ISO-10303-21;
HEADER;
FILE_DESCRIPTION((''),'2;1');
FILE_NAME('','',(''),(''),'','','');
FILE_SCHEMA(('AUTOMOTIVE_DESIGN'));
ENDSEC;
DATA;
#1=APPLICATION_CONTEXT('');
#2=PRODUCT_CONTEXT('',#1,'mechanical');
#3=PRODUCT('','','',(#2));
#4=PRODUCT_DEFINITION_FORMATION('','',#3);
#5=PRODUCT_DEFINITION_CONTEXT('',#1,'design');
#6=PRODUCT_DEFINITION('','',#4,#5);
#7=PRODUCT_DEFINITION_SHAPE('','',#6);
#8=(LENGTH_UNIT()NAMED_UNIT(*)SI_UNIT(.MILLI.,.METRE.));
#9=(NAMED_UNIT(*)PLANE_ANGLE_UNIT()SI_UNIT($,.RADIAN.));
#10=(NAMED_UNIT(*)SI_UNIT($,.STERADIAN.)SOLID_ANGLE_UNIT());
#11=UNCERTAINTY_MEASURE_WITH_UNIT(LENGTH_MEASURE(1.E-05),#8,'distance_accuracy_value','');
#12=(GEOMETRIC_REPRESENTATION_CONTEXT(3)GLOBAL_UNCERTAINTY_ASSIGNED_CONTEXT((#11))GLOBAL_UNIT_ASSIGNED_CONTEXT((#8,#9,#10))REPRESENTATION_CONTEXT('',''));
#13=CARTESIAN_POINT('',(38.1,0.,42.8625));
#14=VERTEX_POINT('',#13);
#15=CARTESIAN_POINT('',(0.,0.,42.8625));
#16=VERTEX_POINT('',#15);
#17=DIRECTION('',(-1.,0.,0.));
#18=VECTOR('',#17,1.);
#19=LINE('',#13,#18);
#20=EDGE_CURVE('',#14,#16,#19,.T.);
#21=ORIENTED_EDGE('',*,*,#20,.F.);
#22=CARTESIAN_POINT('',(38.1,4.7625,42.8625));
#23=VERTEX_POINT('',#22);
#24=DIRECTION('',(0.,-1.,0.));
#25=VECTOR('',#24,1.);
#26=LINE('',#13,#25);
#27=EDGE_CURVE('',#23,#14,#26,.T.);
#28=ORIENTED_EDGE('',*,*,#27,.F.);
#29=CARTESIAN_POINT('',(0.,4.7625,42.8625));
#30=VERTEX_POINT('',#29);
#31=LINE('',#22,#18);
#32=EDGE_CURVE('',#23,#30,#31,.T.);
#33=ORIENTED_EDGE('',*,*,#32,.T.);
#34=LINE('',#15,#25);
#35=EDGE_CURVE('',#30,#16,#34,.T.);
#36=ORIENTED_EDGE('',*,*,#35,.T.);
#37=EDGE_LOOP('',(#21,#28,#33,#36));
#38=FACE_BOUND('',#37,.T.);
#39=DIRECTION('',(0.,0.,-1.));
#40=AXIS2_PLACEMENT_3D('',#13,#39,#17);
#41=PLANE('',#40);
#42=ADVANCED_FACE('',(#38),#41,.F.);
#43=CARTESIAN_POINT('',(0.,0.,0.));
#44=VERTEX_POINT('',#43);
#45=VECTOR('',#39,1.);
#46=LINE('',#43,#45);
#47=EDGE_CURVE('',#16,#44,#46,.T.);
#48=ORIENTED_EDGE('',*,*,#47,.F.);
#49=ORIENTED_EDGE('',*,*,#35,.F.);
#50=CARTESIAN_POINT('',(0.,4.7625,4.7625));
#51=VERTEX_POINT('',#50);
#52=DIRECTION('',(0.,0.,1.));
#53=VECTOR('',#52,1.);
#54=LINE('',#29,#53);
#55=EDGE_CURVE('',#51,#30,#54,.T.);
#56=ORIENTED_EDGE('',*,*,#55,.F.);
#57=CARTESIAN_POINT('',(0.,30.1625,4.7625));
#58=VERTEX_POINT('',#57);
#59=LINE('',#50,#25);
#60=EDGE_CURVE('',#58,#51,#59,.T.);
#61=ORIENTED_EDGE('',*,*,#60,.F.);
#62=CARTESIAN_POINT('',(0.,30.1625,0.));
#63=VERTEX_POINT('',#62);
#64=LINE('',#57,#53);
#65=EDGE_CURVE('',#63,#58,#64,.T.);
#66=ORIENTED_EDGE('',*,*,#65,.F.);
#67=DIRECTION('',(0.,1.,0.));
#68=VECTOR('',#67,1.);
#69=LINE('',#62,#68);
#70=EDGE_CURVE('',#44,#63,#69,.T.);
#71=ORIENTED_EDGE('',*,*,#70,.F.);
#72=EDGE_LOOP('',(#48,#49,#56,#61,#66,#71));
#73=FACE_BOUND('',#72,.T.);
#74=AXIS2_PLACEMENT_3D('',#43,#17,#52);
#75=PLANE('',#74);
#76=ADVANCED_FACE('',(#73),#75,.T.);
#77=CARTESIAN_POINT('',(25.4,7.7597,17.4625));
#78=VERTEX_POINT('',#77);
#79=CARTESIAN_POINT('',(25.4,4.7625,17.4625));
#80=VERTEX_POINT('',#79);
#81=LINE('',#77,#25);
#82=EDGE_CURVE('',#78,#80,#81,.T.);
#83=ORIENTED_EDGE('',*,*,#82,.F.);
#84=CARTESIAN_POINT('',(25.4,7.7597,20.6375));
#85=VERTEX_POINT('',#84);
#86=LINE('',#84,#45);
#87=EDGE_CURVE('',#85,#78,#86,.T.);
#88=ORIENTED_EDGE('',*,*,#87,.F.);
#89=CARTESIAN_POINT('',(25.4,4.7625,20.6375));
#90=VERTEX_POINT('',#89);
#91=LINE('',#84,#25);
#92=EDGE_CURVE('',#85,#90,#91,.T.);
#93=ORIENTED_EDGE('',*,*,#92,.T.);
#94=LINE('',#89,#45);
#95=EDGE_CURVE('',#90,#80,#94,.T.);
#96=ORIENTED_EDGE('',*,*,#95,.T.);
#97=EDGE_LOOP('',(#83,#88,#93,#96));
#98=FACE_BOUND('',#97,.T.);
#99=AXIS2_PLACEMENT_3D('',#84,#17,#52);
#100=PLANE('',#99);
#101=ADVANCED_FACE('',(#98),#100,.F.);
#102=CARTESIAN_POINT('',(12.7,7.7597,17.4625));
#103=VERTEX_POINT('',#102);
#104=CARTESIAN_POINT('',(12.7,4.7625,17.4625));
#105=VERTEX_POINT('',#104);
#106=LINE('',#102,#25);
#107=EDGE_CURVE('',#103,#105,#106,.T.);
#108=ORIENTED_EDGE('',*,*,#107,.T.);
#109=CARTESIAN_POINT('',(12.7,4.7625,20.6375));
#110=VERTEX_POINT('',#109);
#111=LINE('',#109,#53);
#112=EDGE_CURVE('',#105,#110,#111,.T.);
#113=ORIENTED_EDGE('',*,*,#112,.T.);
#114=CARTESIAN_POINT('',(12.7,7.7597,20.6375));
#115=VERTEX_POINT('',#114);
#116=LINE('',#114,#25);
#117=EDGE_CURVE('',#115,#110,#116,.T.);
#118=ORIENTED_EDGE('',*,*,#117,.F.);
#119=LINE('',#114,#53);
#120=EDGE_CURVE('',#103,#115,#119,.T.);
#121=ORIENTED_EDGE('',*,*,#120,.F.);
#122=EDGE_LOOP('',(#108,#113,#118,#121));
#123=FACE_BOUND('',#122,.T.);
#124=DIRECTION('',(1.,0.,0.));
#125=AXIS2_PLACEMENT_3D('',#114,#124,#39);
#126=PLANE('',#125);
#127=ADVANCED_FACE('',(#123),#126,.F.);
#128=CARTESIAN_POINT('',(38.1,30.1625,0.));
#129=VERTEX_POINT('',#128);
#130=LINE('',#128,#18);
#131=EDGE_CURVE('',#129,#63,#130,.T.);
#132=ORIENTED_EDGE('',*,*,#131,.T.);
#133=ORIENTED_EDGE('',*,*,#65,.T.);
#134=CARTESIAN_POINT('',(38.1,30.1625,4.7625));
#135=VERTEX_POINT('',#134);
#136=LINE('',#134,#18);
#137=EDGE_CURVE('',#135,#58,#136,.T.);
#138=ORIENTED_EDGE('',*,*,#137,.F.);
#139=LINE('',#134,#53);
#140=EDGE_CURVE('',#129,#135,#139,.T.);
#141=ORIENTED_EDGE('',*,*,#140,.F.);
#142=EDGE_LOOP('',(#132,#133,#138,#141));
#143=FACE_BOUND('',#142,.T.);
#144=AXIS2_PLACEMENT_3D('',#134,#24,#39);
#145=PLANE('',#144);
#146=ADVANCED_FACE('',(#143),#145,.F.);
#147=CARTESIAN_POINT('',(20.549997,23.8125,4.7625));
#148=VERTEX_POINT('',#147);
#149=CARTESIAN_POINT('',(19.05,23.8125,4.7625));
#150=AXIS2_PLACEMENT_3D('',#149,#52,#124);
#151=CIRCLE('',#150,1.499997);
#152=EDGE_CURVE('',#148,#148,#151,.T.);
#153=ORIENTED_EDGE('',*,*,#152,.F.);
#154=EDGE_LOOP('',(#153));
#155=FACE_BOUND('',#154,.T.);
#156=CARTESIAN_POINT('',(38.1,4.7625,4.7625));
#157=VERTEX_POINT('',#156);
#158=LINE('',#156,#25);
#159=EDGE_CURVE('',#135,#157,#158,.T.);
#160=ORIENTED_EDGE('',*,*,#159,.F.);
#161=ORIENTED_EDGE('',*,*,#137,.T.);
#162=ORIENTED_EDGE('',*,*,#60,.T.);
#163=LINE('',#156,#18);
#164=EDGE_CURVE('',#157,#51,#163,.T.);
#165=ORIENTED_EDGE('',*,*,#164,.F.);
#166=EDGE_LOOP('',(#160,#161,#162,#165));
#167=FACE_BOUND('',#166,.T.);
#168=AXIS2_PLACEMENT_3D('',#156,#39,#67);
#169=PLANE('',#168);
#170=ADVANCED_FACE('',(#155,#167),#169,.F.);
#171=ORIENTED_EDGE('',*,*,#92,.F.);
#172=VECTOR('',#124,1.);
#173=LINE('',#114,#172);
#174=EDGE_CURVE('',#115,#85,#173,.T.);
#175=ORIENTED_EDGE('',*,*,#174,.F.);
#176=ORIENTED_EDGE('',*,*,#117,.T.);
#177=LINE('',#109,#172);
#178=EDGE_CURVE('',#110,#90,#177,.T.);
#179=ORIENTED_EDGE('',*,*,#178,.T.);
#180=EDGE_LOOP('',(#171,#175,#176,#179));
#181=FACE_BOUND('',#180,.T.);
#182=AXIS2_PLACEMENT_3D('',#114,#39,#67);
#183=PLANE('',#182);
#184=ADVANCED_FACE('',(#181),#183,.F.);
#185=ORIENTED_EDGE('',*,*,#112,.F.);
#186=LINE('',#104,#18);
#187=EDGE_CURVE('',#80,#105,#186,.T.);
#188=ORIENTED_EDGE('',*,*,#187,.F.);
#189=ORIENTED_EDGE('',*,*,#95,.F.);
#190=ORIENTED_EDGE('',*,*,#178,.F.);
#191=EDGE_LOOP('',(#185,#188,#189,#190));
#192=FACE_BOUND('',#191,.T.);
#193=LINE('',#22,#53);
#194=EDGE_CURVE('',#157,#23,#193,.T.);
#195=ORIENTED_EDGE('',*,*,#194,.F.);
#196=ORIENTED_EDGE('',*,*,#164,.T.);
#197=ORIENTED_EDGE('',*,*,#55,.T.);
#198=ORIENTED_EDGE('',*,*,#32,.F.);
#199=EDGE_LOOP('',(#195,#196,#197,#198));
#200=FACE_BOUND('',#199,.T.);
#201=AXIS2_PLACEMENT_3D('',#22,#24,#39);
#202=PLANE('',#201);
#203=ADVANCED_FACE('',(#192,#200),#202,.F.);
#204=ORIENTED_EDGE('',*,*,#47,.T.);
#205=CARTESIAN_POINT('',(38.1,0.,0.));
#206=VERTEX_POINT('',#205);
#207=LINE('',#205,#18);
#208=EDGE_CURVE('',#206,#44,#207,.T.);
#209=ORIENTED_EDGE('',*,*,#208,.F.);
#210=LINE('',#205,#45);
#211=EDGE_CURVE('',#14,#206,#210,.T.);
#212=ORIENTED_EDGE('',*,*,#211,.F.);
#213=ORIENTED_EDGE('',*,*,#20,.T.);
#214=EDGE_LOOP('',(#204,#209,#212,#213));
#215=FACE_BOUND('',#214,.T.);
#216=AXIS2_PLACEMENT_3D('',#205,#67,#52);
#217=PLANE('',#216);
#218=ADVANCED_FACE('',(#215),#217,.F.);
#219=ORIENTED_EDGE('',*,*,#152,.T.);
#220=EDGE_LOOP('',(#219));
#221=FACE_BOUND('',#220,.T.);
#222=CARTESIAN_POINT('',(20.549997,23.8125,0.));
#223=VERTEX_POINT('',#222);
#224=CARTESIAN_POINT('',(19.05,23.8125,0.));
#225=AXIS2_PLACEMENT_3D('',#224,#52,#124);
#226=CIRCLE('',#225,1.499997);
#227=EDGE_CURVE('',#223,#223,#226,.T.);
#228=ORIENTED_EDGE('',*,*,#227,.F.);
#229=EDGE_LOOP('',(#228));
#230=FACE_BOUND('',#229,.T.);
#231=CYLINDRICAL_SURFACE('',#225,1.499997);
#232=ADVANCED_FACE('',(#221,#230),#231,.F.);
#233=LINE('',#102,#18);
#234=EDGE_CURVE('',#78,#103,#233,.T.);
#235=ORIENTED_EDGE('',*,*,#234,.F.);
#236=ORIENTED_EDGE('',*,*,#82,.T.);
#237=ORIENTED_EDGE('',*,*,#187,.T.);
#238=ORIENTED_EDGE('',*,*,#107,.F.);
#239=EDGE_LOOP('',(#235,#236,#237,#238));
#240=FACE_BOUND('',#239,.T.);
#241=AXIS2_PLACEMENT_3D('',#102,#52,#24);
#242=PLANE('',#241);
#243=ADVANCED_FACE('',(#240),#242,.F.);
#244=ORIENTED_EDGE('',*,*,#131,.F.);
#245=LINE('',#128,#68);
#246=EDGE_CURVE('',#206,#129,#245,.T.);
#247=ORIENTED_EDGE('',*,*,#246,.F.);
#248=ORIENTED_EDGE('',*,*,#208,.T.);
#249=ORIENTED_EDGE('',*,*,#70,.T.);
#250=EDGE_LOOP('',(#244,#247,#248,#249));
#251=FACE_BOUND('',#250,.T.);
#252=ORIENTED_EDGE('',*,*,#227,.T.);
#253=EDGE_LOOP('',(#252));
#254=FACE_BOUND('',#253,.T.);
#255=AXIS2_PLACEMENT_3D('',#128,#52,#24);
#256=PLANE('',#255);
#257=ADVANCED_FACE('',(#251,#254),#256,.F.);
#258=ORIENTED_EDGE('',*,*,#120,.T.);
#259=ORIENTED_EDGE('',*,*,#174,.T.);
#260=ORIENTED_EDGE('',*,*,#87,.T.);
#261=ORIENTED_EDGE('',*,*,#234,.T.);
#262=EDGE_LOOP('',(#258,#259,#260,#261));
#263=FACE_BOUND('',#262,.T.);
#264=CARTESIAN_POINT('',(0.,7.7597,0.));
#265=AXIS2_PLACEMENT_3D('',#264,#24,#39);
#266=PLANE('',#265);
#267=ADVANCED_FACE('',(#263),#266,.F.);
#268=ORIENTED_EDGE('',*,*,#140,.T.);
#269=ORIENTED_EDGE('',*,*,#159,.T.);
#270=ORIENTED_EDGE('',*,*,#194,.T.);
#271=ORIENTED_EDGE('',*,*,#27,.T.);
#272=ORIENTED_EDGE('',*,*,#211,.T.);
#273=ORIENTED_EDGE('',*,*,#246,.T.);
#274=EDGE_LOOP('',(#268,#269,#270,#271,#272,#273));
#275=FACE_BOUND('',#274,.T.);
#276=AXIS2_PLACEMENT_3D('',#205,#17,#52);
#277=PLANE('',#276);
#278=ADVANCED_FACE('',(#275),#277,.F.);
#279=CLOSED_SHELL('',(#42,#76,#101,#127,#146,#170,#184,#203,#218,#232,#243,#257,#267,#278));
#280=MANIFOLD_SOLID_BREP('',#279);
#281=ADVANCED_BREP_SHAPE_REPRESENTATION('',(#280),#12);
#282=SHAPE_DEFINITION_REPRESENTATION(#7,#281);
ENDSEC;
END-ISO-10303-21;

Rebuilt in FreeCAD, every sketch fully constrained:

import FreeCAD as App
import Part
import Sketcher
from FreeCAD import Vector
Q = App.Units.Quantity

doc = App.newDocument("Part")
params = doc.addObject("Spreadsheet::Sheet", "Params")
for row, (alias, value) in enumerate([
    ("sketch1_width", "1 in"),
    ("sketch1_height", "1.5 in"),
    ("sketch1_width2", "1.1875 in"),
    ("pad1_length", "1.5 in"),
    ("sketch2_width", "0.5 in"),
    ("sketch2_height", "0.125 in"),
    ("pad2_length", "0.118 in"),
], start=1):
    params.set(f"A{row}", alias)
    params.set(f"B{row}", "=" + value)
    params.setAlias(f"B{row}", alias)

body = doc.addObject("PartDesign::Body", "Body")

# Sketch on YZ plane
sketch1 = doc.addObject("Sketcher::SketchObject", "Sketch")
body.addObject(sketch1)
sketch1.AttachmentSupport = (doc.YZ_Plane, [""])
sketch1.MapMode = "FlatFace"
sketch1.addGeometry([
    Part.LineSegment(Vector(0, 42.8625, 0), Vector(0, 0, 0)),  # 0
    Part.LineSegment(Vector(0, 0, 0), Vector(30.1625, 0, 0)),  # 1
    Part.LineSegment(Vector(30.1625, 0, 0), Vector(30.1625, 4.7625, 0)),  # 2
    Part.LineSegment(Vector(30.1625, 4.7625, 0), Vector(4.7625, 4.7625, 0)),  # 3
    Part.LineSegment(Vector(4.7625, 4.7625, 0), Vector(4.7625, 42.8625, 0)),  # 4
    Part.LineSegment(Vector(4.7625, 42.8625, 0), Vector(0, 42.8625, 0)),  # 5
], False)
sketch1.addConstraint([
    Sketcher.Constraint("Coincident", 0, 2, 1, 1),
    Sketcher.Constraint("Coincident", 1, 2, 2, 1),
    Sketcher.Constraint("Coincident", 2, 2, 3, 1),
    Sketcher.Constraint("Coincident", 3, 2, 4, 1),
    Sketcher.Constraint("Coincident", 4, 2, 5, 1),
    Sketcher.Constraint("Coincident", 5, 2, 0, 1),
    Sketcher.Constraint("Vertical", 0),
    Sketcher.Constraint("Horizontal", 1),
    Sketcher.Constraint("Vertical", 2),
    Sketcher.Constraint("Horizontal", 3),
    Sketcher.Constraint("Vertical", 4),
    Sketcher.Constraint("Horizontal", 5),
    Sketcher.Constraint("Coincident", 0, 2, -1, 1),
    Sketcher.Constraint("Equal", 5, 2),
    Sketcher.Constraint("DistanceX", 3, 2, 3, 1, Q("1 in")),
    Sketcher.Constraint("DistanceY", 4, 1, 4, 2, Q("1.5 in")),
    Sketcher.Constraint("DistanceX", 1, 1, 1, 2, Q("1.1875 in")),
])
sketch1.setExpression("Constraints[14]", "Params.sketch1_width")
sketch1.setExpression("Constraints[15]", "Params.sketch1_height")
sketch1.setExpression("Constraints[16]", "Params.sketch1_width2")
pad1 = doc.addObject("PartDesign::Pad", "Pad")
body.addObject(pad1)
pad1.Profile = sketch1
pad1.setExpression("Length", "Params.pad1_length")

# Sketch on XZ plane
sketch2 = doc.addObject("Sketcher::SketchObject", "Sketch001")
body.addObject(sketch2)
sketch2.AttachmentSupport = (doc.XZ_Plane, [""])
sketch2.MapMode = "FlatFace"
sketch2.AttachmentOffset = App.Placement(Vector(0, 0, -0.1875 * 25.4), App.Rotation())
sketch2.addGeometry([
    Part.LineSegment(Vector(12.7, 17.4625, 0), Vector(12.7, 20.6375, 0)),
    Part.LineSegment(Vector(12.7, 20.6375, 0), Vector(25.4, 20.6375, 0)),
    Part.LineSegment(Vector(25.4, 20.6375, 0), Vector(25.4, 17.4625, 0)),
    Part.LineSegment(Vector(25.4, 17.4625, 0), Vector(12.7, 17.4625, 0)),
], False)
sketch2.addConstraint([
    Sketcher.Constraint("Coincident", 0, 2, 1, 1),
    Sketcher.Constraint("Coincident", 1, 2, 2, 1),
    Sketcher.Constraint("Coincident", 2, 2, 3, 1),
    Sketcher.Constraint("Coincident", 3, 2, 0, 1),
    Sketcher.Constraint("Vertical", 0),
    Sketcher.Constraint("Horizontal", 1),
    Sketcher.Constraint("Vertical", 2),
    Sketcher.Constraint("Horizontal", 3),
    Sketcher.Constraint("DistanceX", 1, 1, 1, 2, Q("0.5 in")),
    Sketcher.Constraint("DistanceX", -1, 1, 1, 2, Q("1 in")),
    Sketcher.Constraint("DistanceY", 0, 1, 0, 2, Q("0.125 in")),
    Sketcher.Constraint("DistanceY", -1, 1, 0, 2, Q("0.8125 in")),
])
sketch2.setExpression("Constraints[8]", "Params.sketch2_width")
sketch2.setExpression("Constraints[10]", "Params.sketch2_height")
pad2 = doc.addObject("PartDesign::Pad", "Pad001")
body.addObject(pad2)
pad2.Profile = sketch2
pad2.setExpression("Length", "Params.pad2_length")
pad2.Reversed = True

# Sketch on XY plane
sketch3 = doc.addObject("Sketcher::SketchObject", "Sketch002")
body.addObject(sketch3)
sketch3.AttachmentSupport = (doc.XY_Plane, [""])
sketch3.MapMode = "FlatFace"
sketch3.AttachmentOffset = App.Placement(Vector(0, 0, 0.1875 * 25.4), App.Rotation())
sketch3.addGeometry(Part.Circle(Vector(19.05, 23.8125, 0), Vector(0, 0, 1), 1.499997), False)
sketch3.addConstraint([
    Sketcher.Constraint("DistanceX", -1, 1, 0, 3, Q("0.75 in")),
    Sketcher.Constraint("DistanceY", -1, 1, 0, 3, Q("0.9375 in")),
    Sketcher.Constraint("Diameter", 0, 2.999994),
])
pocket1 = doc.addObject("PartDesign::Pocket", "Pocket")
body.addObject(pocket1)
pocket1.Profile = sketch3
pocket1.Type = "ThroughAll"

doc.recompute()
